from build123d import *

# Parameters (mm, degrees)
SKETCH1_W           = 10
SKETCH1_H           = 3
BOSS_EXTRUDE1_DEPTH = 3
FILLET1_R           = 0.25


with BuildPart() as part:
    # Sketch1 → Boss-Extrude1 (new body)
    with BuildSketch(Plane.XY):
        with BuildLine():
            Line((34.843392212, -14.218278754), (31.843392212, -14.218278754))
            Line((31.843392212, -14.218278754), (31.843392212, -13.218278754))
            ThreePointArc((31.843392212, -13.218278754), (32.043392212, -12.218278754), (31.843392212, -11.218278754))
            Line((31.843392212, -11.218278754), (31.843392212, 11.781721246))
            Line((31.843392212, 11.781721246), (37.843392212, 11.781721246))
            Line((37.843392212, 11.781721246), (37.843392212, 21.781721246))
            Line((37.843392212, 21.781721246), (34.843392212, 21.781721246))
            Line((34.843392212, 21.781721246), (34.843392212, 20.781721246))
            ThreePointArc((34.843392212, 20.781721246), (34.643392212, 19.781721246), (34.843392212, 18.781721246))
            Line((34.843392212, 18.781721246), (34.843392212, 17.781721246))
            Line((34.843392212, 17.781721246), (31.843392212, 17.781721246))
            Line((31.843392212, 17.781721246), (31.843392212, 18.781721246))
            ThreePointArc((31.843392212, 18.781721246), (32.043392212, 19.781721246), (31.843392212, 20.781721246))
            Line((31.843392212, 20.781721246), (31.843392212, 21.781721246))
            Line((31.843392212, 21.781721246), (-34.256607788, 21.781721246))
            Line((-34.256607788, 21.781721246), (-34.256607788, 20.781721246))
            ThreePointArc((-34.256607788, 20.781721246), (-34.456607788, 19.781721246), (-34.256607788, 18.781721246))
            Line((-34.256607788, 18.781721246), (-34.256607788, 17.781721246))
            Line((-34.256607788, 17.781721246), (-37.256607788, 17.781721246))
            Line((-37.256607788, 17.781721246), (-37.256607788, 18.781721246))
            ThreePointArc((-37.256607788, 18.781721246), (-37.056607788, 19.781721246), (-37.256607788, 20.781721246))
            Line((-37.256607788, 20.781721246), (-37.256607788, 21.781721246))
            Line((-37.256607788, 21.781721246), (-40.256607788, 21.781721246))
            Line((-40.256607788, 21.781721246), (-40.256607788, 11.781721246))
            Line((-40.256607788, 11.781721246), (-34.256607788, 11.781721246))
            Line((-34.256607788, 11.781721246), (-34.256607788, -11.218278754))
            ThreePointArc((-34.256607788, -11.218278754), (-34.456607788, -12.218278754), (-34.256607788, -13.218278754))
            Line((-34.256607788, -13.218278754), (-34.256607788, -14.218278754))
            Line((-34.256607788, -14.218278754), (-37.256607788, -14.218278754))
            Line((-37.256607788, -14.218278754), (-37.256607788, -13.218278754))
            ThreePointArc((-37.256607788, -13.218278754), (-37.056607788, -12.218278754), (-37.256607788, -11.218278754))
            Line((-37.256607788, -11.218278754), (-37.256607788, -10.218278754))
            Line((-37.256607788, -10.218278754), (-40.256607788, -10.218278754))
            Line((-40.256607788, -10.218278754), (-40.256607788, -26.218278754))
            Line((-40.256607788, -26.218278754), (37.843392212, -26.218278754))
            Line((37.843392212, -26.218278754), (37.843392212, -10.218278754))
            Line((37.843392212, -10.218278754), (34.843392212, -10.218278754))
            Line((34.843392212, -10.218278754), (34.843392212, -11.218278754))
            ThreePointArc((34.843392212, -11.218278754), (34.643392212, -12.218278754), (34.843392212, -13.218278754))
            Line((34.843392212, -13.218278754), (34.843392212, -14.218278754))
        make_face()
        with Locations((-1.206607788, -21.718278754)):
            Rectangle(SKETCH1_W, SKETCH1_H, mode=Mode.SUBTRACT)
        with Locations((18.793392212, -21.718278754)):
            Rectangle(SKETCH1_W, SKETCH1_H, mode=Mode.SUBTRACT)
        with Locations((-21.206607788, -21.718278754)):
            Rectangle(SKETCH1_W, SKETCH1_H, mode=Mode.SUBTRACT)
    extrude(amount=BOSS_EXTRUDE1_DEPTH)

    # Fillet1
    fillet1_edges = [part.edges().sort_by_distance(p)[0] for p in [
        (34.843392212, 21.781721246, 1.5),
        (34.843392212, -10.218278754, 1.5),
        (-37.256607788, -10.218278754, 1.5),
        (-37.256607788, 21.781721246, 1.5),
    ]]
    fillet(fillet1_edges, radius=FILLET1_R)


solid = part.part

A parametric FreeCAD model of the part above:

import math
import FreeCAD as App
import Part
import Sketcher
from FreeCAD import Vector


def edges_at(feature, points):
    """Names of the edges that pass closest to the given points."""
    edges = feature.Shape.Edges
    near = lambda p: min(range(len(edges)), key=lambda i: edges[i].distToShape(Part.Vertex(*p))[0])
    return sorted({f"Edge{near(p) + 1}" for p in points})

doc = App.newDocument("Part")
body = doc.addObject("PartDesign::Body", "Body")

# Sketch on XY plane
sketch1 = body.newObject("Sketcher::SketchObject", "Sketch")
sketch1.AttachmentSupport = (doc.getObject("XY_Plane"), [""])
sketch1.MapMode = "FlatFace"
sketch1.addGeometry([
    Part.LineSegment(Vector(34.8, -14.2, 0), Vector(31.8, -14.2, 0)),  # 0
    Part.LineSegment(Vector(31.8, -14.2, 0), Vector(31.8, -13.2, 0)),  # 1
    Part.ArcOfCircle(Part.Circle(Vector(29.4, -12.2, 0), Vector(0, 0, 1), 2.6), math.radians(-23), math.radians(23)),  # 2
    Part.LineSegment(Vector(31.8, -11.2, 0), Vector(31.8, 11.8, 0)),  # 3
    Part.LineSegment(Vector(31.8, 11.8, 0), Vector(37.8, 11.8, 0)),  # 4
    Part.LineSegment(Vector(37.8, 11.8, 0), Vector(37.8, 21.8, 0)),  # 5
    Part.LineSegment(Vector(37.8, 21.8, 0), Vector(34.8, 21.8, 0)),  # 6
    Part.LineSegment(Vector(34.8, 21.8, 0), Vector(34.8, 20.8, 0)),  # 7
    Part.ArcOfCircle(Part.Circle(Vector(37.2, 19.8, 0), Vector(0, 0, 1), 2.6), math.radians(157), math.radians(203)),  # 8
    Part.LineSegment(Vector(34.8, 18.8, 0), Vector(34.8, 17.8, 0)),  # 9
    Part.LineSegment(Vector(34.8, 17.8, 0), Vector(31.8, 17.8, 0)),  # 10
    Part.LineSegment(Vector(31.8, 17.8, 0), Vector(31.8, 18.8, 0)),  # 11
    Part.ArcOfCircle(Part.Circle(Vector(29.4, 19.8, 0), Vector(0, 0, 1), 2.6), math.radians(-23), math.radians(23)),  # 12
    Part.LineSegment(Vector(31.8, 20.8, 0), Vector(31.8, 21.8, 0)),  # 13
    Part.LineSegment(Vector(31.8, 21.8, 0), Vector(-34.3, 21.8, 0)),  # 14
    Part.LineSegment(Vector(-34.3, 21.8, 0), Vector(-34.3, 20.8, 0)),  # 15
    Part.ArcOfCircle(Part.Circle(Vector(-31.9, 19.8, 0), Vector(0, 0, 1), 2.6), math.radians(157), math.radians(203)),  # 16
    Part.LineSegment(Vector(-34.3, 18.8, 0), Vector(-34.3, 17.8, 0)),  # 17
    Part.LineSegment(Vector(-34.3, 17.8, 0), Vector(-37.3, 17.8, 0)),  # 18
    Part.LineSegment(Vector(-37.3, 17.8, 0), Vector(-37.3, 18.8, 0)),  # 19
    Part.ArcOfCircle(Part.Circle(Vector(-39.7, 19.8, 0), Vector(0, 0, 1), 2.6), math.radians(-23), math.radians(23)),  # 20
    Part.LineSegment(Vector(-37.3, 20.8, 0), Vector(-37.3, 21.8, 0)),  # 21
    Part.LineSegment(Vector(-37.3, 21.8, 0), Vector(-40.3, 21.8, 0)),  # 22
    Part.LineSegment(Vector(-40.3, 21.8, 0), Vector(-40.3, 11.8, 0)),  # 23
    Part.LineSegment(Vector(-40.3, 11.8, 0), Vector(-34.3, 11.8, 0)),  # 24
    Part.LineSegment(Vector(-34.3, 11.8, 0), Vector(-34.3, -11.2, 0)),  # 25
    Part.ArcOfCircle(Part.Circle(Vector(-31.9, -12.2, 0), Vector(0, 0, 1), 2.6), math.radians(157), math.radians(203)),  # 26
    Part.LineSegment(Vector(-34.3, -13.2, 0), Vector(-34.3, -14.2, 0)),  # 27
    Part.LineSegment(Vector(-34.3, -14.2, 0), Vector(-37.3, -14.2, 0)),  # 28
    Part.LineSegment(Vector(-37.3, -14.2, 0), Vector(-37.3, -13.2, 0)),  # 29
    Part.ArcOfCircle(Part.Circle(Vector(-39.7, -12.2, 0), Vector(0, 0, 1), 2.6), math.radians(-23), math.radians(23)),  # 30
    Part.LineSegment(Vector(-37.3, -11.2, 0), Vector(-37.3, -10.2, 0)),  # 31
    Part.LineSegment(Vector(-37.3, -10.2, 0), Vector(-40.3, -10.2, 0)),  # 32
    Part.LineSegment(Vector(-40.3, -10.2, 0), Vector(-40.3, -26.2, 0)),  # 33
    Part.LineSegment(Vector(-40.3, -26.2, 0), Vector(37.8, -26.2, 0)),  # 34
    Part.LineSegment(Vector(37.8, -26.2, 0), Vector(37.8, -10.2, 0)),  # 35
    Part.LineSegment(Vector(37.8, -10.2, 0), Vector(34.8, -10.2, 0)),  # 36
    Part.LineSegment(Vector(34.8, -10.2, 0), Vector(34.8, -11.2, 0)),  # 37
    Part.ArcOfCircle(Part.Circle(Vector(37.2, -12.2, 0), Vector(0, 0, 1), 2.6), math.radians(157), math.radians(203)),  # 38
    Part.LineSegment(Vector(34.8, -13.2, 0), Vector(34.8, -14.2, 0)),  # 39
    Part.LineSegment(Vector(-16.2, -23.2, 0), Vector(-26.2, -23.2, 0)),  # 40
    Part.LineSegment(Vector(-26.2, -23.2, 0), Vector(-26.2, -20.2, 0)),  # 41
    Part.LineSegment(Vector(-26.2, -20.2, 0), Vector(-16.2, -20.2, 0)),  # 42
    Part.LineSegment(Vector(-16.2, -20.2, 0), Vector(-16.2, -23.2, 0)),  # 43
    Part.LineSegment(Vector(3.8, -23.2, 0), Vector(-6.2, -23.2, 0)),  # 44
    Part.LineSegment(Vector(-6.2, -23.2, 0), Vector(-6.2, -20.2, 0)),  # 45
    Part.LineSegment(Vector(-6.2, -20.2, 0), Vector(3.8, -20.2, 0)),  # 46
    Part.LineSegment(Vector(3.8, -20.2, 0), Vector(3.8, -23.2, 0)),  # 47
    Part.LineSegment(Vector(23.8, -23.2, 0), Vector(13.8, -23.2, 0)),  # 48
    Part.LineSegment(Vector(13.8, -23.2, 0), Vector(13.8, -20.2, 0)),  # 49
    Part.LineSegment(Vector(13.8, -20.2, 0), Vector(23.8, -20.2, 0)),  # 50
    Part.LineSegment(Vector(23.8, -20.2, 0), Vector(23.8, -23.2, 0)),  # 51
], False)
sketch1.addConstraint([
    Sketcher.Constraint("Coincident", 0, 2, 1, 1),
    Sketcher.Constraint("Coincident", 1, 2, 2, 1),
    Sketcher.Constraint("Coincident", 2, 2, 3, 1),
    Sketcher.Constraint("Coincident", 3, 2, 4, 1),
    Sketcher.Constraint("Coincident", 4, 2, 5, 1),
    Sketcher.Constraint("Coincident", 5, 2, 6, 1),
    Sketcher.Constraint("Coincident", 6, 2, 7, 1),
    Sketcher.Constraint("Coincident", 7, 2, 8, 1),
    Sketcher.Constraint("Coincident", 8, 2, 9, 1),
    Sketcher.Constraint("Coincident", 9, 2, 10, 1),
    Sketcher.Constraint("Coincident", 10, 2, 11, 1),
    Sketcher.Constraint("Coincident", 11, 2, 12, 1),
    Sketcher.Constraint("Coincident", 12, 2, 13, 1),
    Sketcher.Constraint("Coincident", 13, 2, 14, 1),
    Sketcher.Constraint("Coincident", 14, 2, 15, 1),
    Sketcher.Constraint("Coincident", 15, 2, 16, 1),
    Sketcher.Constraint("Coincident", 16, 2, 17, 1),
    Sketcher.Constraint("Coincident", 17, 2, 18, 1),
    Sketcher.Constraint("Coincident", 18, 2, 19, 1),
    Sketcher.Constraint("Coincident", 19, 2, 20, 1),
    Sketcher.Constraint("Coincident", 20, 2, 21, 1),
    Sketcher.Constraint("Coincident", 21, 2, 22, 1),
    Sketcher.Constraint("Coincident", 22, 2, 23, 1),
    Sketcher.Constraint("Coincident", 23, 2, 24, 1),
    Sketcher.Constraint("Coincident", 24, 2, 25, 1),
    Sketcher.Constraint("Coincident", 25, 2, 26, 1),
    Sketcher.Constraint("Coincident", 26, 2, 27, 1),
    Sketcher.Constraint("Coincident", 27, 2, 28, 1),
    Sketcher.Constraint("Coincident", 28, 2, 29, 1),
    Sketcher.Constraint("Coincident", 29, 2, 30, 1),
    Sketcher.Constraint("Coincident", 30, 2, 31, 1),
    Sketcher.Constraint("Coincident", 31, 2, 32, 1),
    Sketcher.Constraint("Coincident", 32, 2, 33, 1),
    Sketcher.Constraint("Coincident", 33, 2, 34, 1),
    Sketcher.Constraint("Coincident", 34, 2, 35, 1),
    Sketcher.Constraint("Coincident", 35, 2, 36, 1),
    Sketcher.Constraint("Coincident", 36, 2, 37, 1),
    Sketcher.Constraint("Coincident", 37, 2, 38, 1),
    Sketcher.Constraint("Coincident", 38, 2, 39, 1),
    Sketcher.Constraint("Coincident", 39, 2, 0, 1),
    Sketcher.Constraint("Coincident", 40, 2, 41, 1),
    Sketcher.Constraint("Coincident", 41, 2, 42, 1),
    Sketcher.Constraint("Coincident", 42, 2, 43, 1),
    Sketcher.Constraint("Coincident", 43, 2, 40, 1),
    Sketcher.Constraint("Coincident", 44, 2, 45, 1),
    Sketcher.Constraint("Coincident", 45, 2, 46, 1),
    Sketcher.Constraint("Coincident", 46, 2, 47, 1),
    Sketcher.Constraint("Coincident", 47, 2, 44, 1),
    Sketcher.Constraint("Coincident", 48, 2, 49, 1),
    Sketcher.Constraint("Coincident", 49, 2, 50, 1),
    Sketcher.Constraint("Coincident", 50, 2, 51, 1),
    Sketcher.Constraint("Coincident", 51, 2, 48, 1),
    Sketcher.Constraint("Horizontal", 0),
    Sketcher.Constraint("Vertical", 1),
    Sketcher.Constraint("Vertical", 3),
    Sketcher.Constraint("Horizontal", 4),
    Sketcher.Constraint("Vertical", 5),
    Sketcher.Constraint("Horizontal", 6),
    Sketcher.Constraint("Vertical", 7),
    Sketcher.Constraint("Vertical", 9),
    Sketcher.Constraint("Horizontal", 10),
    Sketcher.Constraint("Vertical", 11),
    Sketcher.Constraint("Vertical", 13),
    Sketcher.Constraint("Horizontal", 14),
    Sketcher.Constraint("Vertical", 15),
    Sketcher.Constraint("Vertical", 17),
    Sketcher.Constraint("Horizontal", 18),
    Sketcher.Constraint("Vertical", 19),
    Sketcher.Constraint("Vertical", 21),
    Sketcher.Constraint("Horizontal", 22),
    Sketcher.Constraint("Vertical", 23),
    Sketcher.Constraint("Horizontal", 24),
    Sketcher.Constraint("Vertical", 25),
    Sketcher.Constraint("Vertical", 27),
    Sketcher.Constraint("Horizontal", 28),
    Sketcher.Constraint("Vertical", 29),
    Sketcher.Constraint("Vertical", 31),
    Sketcher.Constraint("Horizontal", 32),
    Sketcher.Constraint("Vertical", 33),
    Sketcher.Constraint("Horizontal", 34),
    Sketcher.Constraint("Vertical", 35),
    Sketcher.Constraint("Horizontal", 36),
    Sketcher.Constraint("Vertical", 37),
    Sketcher.Constraint("Vertical", 39),
    Sketcher.Constraint("Horizontal", 40),
    Sketcher.Constraint("Vertical", 41),
    Sketcher.Constraint("Horizontal", 42),
    Sketcher.Constraint("Vertical", 43),
    Sketcher.Constraint("Horizontal", 44),
    Sketcher.Constraint("Vertical", 45),
    Sketcher.Constraint("Horizontal", 46),
    Sketcher.Constraint("Vertical", 47),
    Sketcher.Constraint("Horizontal", 48),
    Sketcher.Constraint("Vertical", 49),
    Sketcher.Constraint("Horizontal", 50),
    Sketcher.Constraint("Vertical", 51),
    Sketcher.Constraint("Equal", 2, 8),
    Sketcher.Constraint("Equal", 8, 12),
    Sketcher.Constraint("Equal", 12, 16),
    Sketcher.Constraint("Equal", 16, 20),
    Sketcher.Constraint("Equal", 20, 26),
    Sketcher.Constraint("Equal", 26, 30),
    Sketcher.Constraint("Equal", 30, 38),
    Sketcher.Constraint("Horizontal", 8, 3, 12, 3),
    Sketcher.Constraint("Horizontal", 12, 3, 16, 3),
    Sketcher.Constraint("Horizontal", 16, 3, 20, 3),
    Sketcher.Constraint("Horizontal", 2, 3, 26, 3),
    Sketcher.Constraint("Horizontal", 26, 3, 30, 3),
    Sketcher.Constraint("Horizontal", 30, 3, 38, 3),
    Sketcher.Constraint("Horizontal", 8, 2, 11, 2),
    Sketcher.Constraint("Horizontal", 7, 2, 12, 2),
    Sketcher.Constraint("Horizontal", 6, 2, 13, 2),
    Sketcher.Constraint("Horizontal", 12, 2, 15, 2),
    Sketcher.Constraint("Horizontal", 11, 2, 16, 2),
    Sketcher.Constraint("Horizontal", 10, 2, 17, 2),
    Sketcher.Constraint("Horizontal", 16, 2, 19, 2),
    Sketcher.Constraint("Horizontal", 15, 2, 20, 2),
    Sketcher.Constraint("Horizontal", 14, 2, 21, 2),
    Sketcher.Constraint("Horizontal", 4, 2, 23, 2),
    Sketcher.Constraint("Horizontal", 2, 2, 25, 2),
    Sketcher.Constraint("Horizontal", 1, 2, 26, 2),
    Sketcher.Constraint("Horizontal", 0, 2, 27, 2),
    Sketcher.Constraint("Horizontal", 26, 2, 29, 2),
    Sketcher.Constraint("Horizontal", 25, 2, 30, 2),
    Sketcher.Constraint("Horizontal", 32, 2, 35, 2),
    Sketcher.Constraint("Horizontal", 30, 2, 37, 2),
    Sketcher.Constraint("Horizontal", 29, 2, 38, 2),
    Sketcher.Constraint("Horizontal", 43, 2, 44, 2),
    Sketcher.Constraint("Horizontal", 42, 2, 45, 2),
    Sketcher.Constraint("Horizontal", 47, 2, 48, 2),
    Sketcher.Constraint("Horizontal", 46, 2, 49, 2),
    Sketcher.Constraint("Vertical", 2, 3, 12, 3),
    Sketcher.Constraint("Vertical", 16, 3, 26, 3),
    Sketcher.Constraint("Vertical", 20, 3, 30, 3),
    Sketcher.Constraint("Vertical", 8, 3, 38, 3),
    Sketcher.Constraint("Vertical", 1, 2, 2, 2),
    Sketcher.Constraint("Vertical", 7, 2, 8, 2),
    Sketcher.Constraint("Vertical", 3, 2, 10, 2),
    Sketcher.Constraint("Vertical", 23, 2, 32, 2),
    Sketcher.Constraint("Vertical", 5, 2, 34, 2),
    Sketcher.Constraint("Equal", 0, 6),
    Sketcher.Constraint("Equal", 10, 18),
    Sketcher.Constraint("Equal", 18, 22),
    Sketcher.Constraint("Equal", 42, 44),
    Sketcher.Constraint("Equal", 46, 48),
    Sketcher.Constraint("Equal", 50, 5),
    Sketcher.Constraint("Equal", 1, 7),
    Sketcher.Constraint("Equal", 7, 9),
    Sketcher.Constraint("Equal", 29, 31),
    Sketcher.Constraint("Equal", 36, 41),
    Sketcher.Constraint("Radius", 2, 2.6),
    Sketcher.Constraint("DistanceX", 0, 2, 0, 1, 3.0),
    Sketcher.Constraint("DistanceX", 40, 2, 40, 1, 10.0),
    Sketcher.Constraint("DistanceY", 1, 1, 1, 2, 1.0),
    Sketcher.Constraint("DistanceY", 3, 1, 3, 2, 23.0),
    Sketcher.Constraint("DistanceY", 33, 2, 33, 1, 16.0),
    Sketcher.Constraint("DistanceX", 14, 2, 14, 1, 66.1),
    Sketcher.Constraint("DistanceY", 0, 2, 2, 3, 2.0),
    Sketcher.Constraint("DistanceY", 40, 2, 27, 2, 9.0),
    Sketcher.Constraint("DistanceX", 43, 2, 44, 2, 10.0),
    Sketcher.Constraint("DistanceX", 47, 2, 48, 2, 10.0),
    Sketcher.Constraint("DistanceX", 27, 2, 40, 2, 8.05),
    Sketcher.Constraint("DistanceY", 2, 3, -1, 1, 12.218279),
    Sketcher.Constraint("DistanceX", -1, 1, 2, 3, 29.443392),
])
pad1 = body.newObject("PartDesign::Pad", "Pad")
pad1.Profile = sketch1
pad1.Length = 3
doc.recompute()

fillet = body.newObject("PartDesign::Fillet", "Fillet")
fillet.Base = (pad1, edges_at(pad1, [
    (34.843, 21.782, 1.5),
    (34.843, -10.218, 1.5),
    (-37.257, -10.218, 1.5),
    (-37.257, 21.782, 1.5),
]))
fillet.Radius = 0.25

doc.recompute()
